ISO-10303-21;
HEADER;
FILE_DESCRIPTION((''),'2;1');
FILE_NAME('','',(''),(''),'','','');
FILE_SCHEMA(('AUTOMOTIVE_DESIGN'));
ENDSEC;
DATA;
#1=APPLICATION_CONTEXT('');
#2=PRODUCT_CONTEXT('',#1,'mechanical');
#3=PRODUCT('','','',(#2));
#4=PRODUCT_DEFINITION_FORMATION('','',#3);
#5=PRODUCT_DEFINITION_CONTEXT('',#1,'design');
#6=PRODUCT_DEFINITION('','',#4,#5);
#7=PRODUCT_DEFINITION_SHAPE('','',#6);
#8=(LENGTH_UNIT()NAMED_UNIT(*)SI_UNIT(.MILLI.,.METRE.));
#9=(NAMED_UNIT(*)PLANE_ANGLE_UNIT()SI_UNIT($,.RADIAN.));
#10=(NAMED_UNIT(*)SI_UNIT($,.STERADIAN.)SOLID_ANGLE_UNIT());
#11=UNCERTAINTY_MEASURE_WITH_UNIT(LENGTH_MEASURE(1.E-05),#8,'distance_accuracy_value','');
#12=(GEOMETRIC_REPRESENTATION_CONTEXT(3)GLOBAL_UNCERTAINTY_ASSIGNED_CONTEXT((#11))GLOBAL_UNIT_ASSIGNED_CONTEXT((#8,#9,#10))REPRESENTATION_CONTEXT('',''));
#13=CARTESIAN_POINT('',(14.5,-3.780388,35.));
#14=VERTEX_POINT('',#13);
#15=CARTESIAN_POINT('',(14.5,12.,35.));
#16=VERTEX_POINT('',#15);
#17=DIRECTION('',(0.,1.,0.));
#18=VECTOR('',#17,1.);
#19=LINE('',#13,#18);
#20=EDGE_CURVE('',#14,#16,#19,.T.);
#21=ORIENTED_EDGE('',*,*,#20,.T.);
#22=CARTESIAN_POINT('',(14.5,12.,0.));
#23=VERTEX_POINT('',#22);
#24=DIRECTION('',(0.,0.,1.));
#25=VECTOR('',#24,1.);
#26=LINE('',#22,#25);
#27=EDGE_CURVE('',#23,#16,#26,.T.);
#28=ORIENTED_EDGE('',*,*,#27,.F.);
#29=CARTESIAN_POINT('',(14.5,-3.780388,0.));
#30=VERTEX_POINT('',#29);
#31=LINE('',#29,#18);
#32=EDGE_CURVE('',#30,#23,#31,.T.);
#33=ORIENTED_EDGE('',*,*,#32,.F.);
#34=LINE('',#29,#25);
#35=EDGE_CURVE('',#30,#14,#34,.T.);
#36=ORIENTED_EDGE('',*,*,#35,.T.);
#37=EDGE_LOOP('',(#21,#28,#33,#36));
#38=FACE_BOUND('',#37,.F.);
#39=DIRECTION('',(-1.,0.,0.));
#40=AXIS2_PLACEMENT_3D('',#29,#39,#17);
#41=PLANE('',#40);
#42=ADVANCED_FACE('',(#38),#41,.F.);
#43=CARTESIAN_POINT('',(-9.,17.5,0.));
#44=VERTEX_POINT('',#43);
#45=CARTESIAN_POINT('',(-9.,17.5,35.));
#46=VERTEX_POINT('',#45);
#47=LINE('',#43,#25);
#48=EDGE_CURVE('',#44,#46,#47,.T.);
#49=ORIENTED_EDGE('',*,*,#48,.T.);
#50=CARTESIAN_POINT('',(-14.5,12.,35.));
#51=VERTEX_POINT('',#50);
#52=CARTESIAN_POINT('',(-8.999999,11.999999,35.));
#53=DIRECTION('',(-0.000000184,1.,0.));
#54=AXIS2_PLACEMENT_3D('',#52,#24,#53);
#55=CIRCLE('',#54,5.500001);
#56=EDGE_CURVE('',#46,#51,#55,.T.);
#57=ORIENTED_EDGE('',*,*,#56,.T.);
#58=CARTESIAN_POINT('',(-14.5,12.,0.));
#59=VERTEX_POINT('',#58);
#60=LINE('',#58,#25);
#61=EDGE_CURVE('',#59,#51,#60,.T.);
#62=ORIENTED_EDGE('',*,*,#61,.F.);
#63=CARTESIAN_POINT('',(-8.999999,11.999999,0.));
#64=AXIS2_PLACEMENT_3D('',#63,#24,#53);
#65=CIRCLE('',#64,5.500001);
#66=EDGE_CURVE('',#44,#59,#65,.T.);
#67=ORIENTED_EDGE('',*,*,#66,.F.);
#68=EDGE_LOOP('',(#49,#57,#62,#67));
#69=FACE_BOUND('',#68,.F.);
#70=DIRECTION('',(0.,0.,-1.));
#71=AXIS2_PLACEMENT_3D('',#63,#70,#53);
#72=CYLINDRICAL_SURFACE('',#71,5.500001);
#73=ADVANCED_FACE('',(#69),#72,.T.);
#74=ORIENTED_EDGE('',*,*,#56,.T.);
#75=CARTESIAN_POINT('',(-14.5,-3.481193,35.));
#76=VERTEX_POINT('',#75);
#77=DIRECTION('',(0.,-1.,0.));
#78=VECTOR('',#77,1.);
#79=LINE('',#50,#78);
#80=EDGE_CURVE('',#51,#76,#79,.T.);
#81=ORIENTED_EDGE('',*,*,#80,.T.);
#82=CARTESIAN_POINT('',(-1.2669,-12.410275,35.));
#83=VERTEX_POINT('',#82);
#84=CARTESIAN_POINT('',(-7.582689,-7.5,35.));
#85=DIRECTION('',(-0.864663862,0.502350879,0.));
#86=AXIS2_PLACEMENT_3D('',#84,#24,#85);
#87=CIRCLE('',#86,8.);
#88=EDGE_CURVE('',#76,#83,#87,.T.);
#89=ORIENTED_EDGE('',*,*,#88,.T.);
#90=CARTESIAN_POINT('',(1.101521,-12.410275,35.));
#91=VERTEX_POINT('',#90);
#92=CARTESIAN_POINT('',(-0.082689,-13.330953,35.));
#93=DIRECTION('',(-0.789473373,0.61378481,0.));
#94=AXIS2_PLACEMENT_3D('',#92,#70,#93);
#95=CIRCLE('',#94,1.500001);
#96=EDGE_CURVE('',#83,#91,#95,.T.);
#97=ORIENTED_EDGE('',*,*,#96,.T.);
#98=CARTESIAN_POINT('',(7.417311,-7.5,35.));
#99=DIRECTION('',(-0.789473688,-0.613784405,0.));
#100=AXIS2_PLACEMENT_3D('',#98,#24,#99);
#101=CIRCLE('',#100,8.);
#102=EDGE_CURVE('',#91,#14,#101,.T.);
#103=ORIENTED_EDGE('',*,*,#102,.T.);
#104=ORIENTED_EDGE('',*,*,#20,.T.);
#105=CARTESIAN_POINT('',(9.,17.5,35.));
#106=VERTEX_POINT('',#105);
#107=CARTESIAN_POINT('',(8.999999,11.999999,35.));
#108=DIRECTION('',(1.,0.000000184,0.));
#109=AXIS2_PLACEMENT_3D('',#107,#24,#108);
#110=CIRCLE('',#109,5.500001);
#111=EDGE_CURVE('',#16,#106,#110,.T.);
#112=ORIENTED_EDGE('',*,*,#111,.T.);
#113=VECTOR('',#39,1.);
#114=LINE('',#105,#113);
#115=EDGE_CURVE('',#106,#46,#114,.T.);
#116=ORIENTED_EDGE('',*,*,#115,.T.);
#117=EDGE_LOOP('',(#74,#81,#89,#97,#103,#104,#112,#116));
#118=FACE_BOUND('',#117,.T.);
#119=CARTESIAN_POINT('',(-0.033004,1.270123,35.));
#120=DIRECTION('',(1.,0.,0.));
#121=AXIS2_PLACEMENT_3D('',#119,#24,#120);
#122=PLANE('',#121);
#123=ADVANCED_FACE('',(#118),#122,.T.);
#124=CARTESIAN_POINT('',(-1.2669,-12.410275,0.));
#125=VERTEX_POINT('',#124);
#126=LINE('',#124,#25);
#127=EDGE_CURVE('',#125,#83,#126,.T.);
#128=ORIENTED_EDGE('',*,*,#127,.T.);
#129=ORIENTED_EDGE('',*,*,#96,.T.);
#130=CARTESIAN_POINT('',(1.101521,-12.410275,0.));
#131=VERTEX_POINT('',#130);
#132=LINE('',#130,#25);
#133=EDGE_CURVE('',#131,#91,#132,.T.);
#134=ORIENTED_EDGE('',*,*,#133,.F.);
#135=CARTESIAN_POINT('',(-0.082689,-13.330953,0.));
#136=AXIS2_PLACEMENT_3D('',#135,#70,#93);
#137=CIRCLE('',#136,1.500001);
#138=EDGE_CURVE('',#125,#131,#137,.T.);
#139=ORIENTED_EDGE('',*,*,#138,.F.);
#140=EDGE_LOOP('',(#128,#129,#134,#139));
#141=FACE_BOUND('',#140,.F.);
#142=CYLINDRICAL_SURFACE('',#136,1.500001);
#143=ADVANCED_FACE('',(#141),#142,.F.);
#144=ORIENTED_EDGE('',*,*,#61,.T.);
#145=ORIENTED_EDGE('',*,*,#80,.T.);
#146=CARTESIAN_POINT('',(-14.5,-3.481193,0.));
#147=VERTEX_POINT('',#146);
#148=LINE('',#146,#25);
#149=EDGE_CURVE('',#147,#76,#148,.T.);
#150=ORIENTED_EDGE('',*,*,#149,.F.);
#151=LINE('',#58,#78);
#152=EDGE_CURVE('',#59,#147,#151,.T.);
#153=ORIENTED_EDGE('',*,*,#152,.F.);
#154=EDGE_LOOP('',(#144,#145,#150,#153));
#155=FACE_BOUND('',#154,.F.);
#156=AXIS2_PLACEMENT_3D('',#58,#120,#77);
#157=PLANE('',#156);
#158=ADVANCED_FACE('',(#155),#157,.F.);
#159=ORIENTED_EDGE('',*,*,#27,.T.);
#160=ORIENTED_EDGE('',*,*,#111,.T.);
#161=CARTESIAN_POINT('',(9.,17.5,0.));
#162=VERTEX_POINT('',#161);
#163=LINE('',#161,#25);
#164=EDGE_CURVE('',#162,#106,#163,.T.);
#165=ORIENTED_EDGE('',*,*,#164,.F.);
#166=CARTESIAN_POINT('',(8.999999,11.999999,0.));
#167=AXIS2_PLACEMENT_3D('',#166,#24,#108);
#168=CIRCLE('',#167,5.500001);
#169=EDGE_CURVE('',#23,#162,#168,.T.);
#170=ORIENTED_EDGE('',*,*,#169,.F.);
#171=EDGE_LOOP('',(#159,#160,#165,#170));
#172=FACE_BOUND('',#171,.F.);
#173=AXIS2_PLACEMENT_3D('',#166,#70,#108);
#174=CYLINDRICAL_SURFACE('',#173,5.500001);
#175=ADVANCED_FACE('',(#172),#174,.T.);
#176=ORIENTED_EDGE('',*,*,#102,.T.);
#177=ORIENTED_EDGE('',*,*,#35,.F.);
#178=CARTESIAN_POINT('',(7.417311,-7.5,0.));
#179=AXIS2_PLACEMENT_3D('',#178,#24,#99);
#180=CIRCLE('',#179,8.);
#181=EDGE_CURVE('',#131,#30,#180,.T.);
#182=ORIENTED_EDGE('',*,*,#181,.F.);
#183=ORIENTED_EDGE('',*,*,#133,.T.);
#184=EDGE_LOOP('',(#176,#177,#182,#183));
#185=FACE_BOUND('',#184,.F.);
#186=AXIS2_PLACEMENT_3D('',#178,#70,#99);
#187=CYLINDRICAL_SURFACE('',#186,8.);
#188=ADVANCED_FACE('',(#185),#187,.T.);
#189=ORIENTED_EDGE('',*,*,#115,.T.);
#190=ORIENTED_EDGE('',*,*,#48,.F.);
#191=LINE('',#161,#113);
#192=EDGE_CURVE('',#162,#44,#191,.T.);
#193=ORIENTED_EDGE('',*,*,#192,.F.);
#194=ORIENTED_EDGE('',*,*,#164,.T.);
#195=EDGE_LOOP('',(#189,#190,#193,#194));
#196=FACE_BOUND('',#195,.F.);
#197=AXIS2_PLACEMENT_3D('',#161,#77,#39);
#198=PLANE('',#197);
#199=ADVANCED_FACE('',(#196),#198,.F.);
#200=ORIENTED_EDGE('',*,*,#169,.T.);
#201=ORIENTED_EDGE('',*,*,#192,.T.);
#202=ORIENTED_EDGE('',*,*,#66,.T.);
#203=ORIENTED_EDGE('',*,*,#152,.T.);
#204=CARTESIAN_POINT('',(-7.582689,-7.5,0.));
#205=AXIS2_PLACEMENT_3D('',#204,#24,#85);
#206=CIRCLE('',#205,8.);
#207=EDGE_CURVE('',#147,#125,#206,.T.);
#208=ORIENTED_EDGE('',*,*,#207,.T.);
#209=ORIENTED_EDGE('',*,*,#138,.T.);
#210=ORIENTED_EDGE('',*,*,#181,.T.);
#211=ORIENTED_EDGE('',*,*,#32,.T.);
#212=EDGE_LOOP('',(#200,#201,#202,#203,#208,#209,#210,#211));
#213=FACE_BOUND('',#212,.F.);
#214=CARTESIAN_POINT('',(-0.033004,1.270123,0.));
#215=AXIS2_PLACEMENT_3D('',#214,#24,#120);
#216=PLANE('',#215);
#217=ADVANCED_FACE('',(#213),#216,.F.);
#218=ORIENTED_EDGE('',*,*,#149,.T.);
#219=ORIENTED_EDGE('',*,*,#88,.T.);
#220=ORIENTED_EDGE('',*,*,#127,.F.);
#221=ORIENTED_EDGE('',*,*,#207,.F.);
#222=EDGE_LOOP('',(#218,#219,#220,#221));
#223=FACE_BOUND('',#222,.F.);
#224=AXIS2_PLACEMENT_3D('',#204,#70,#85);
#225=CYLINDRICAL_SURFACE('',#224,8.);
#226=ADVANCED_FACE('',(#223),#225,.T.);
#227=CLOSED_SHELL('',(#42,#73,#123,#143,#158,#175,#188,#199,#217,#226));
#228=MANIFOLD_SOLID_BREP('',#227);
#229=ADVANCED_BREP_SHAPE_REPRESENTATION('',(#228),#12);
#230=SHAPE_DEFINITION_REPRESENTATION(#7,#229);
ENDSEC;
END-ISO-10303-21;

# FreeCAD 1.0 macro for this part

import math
import FreeCAD as App
import Part
import Sketcher

V = App.Vector

doc = App.newDocument("Part")
body = doc.addObject("PartDesign::Body", "Body")

# Sketch on XY plane
sketch1 = doc.addObject("Sketcher::SketchObject", "Sketch")
body.addObject(sketch1)
sketch1.AttachmentSupport = (doc.XY_Plane, [""])
sketch1.MapMode = "FlatFace"
sketch1.addGeometry([
    Part.LineSegment(V(9, 17.5, 0), V(-9, 17.5, 0)),  # 0
    Part.ArcOfCircle(Part.Circle(V(-8.999999, 11.999999, 0), V(0, 0, 1), 5.500001), math.radians(90.000011), math.radians(179.999989)),  # 1
    Part.LineSegment(V(-14.5, 12, 0), V(-14.5, -3.481193, 0)),  # 2
    Part.ArcOfCircle(Part.Circle(V(-7.582689, -7.5, 0), V(0, 0, 1), 8), math.radians(149.844345), math.radians(322.136354)),  # 3
    Part.ArcOfCircle(Part.Circle(V(-0.082689, -13.330953, 0), V(0, 0, 1), 1.500001), math.radians(37.863675), math.radians(142.136325)),  # 4
    Part.ArcOfCircle(Part.Circle(V(7.417311, -7.5, 0), V(0, 0, 1), 8), math.radians(-142.136354), math.radians(27.707081)),  # 5
    Part.LineSegment(V(14.5, -3.780388, 0), V(14.5, 12, 0)),  # 6
    Part.ArcOfCircle(Part.Circle(V(8.999999, 11.999999, 0), V(0, 0, 1), 5.500001), math.radians(0.000011), math.radians(89.999989)),  # 7
], False)
sketch1.addConstraint([
    Sketcher.Constraint("Tangent", 0, 2, 1, 1),
    Sketcher.Constraint("Tangent", 1, 2, 2, 1),
    Sketcher.Constraint("Coincident", 2, 2, 3, 1),
    Sketcher.Constraint("Tangent", 3, 2, 4, 2),
    Sketcher.Constraint("Tangent", 4, 1, 5, 1),
    Sketcher.Constraint("Coincident", 5, 2, 6, 1),
    Sketcher.Constraint("Tangent", 6, 2, 7, 1),
    Sketcher.Constraint("Tangent", 7, 2, 0, 1),
    Sketcher.Constraint("Horizontal", 0),
    Sketcher.Constraint("Vertical", 2),
    Sketcher.Constraint("Vertical", 6),
    Sketcher.Constraint("Equal", 3, 5),
    Sketcher.Constraint("Equal", 1, 7),
    Sketcher.Constraint("Horizontal", 3, 3, 5, 3),
    Sketcher.Constraint("Radius", 3, 8.0),
    Sketcher.Constraint("Radius", 1, 5.500001),
    Sketcher.Constraint("Radius", 4, 1.500001),
    Sketcher.Constraint("DistanceX", 0, 2, 0, 1, 18.0),
    Sketcher.Constraint("DistanceX", 1, 3, -1, 1, 8.999999),
    Sketcher.Constraint("DistanceY", -1, 1, 1, 3, 11.999999),
    Sketcher.Constraint("DistanceX", 3, 3, 5, 3, 15.0),
    Sketcher.Constraint("DistanceY", 3, 3, 0, 2, 25.0),
    Sketcher.Constraint("DistanceX", 3, 2, -1, 1, 1.2669),
])
pad1 = doc.addObject("PartDesign::Pad", "Pad")
body.addObject(pad1)
pad1.Profile = sketch1
pad1.Length = 35

doc.recompute()
